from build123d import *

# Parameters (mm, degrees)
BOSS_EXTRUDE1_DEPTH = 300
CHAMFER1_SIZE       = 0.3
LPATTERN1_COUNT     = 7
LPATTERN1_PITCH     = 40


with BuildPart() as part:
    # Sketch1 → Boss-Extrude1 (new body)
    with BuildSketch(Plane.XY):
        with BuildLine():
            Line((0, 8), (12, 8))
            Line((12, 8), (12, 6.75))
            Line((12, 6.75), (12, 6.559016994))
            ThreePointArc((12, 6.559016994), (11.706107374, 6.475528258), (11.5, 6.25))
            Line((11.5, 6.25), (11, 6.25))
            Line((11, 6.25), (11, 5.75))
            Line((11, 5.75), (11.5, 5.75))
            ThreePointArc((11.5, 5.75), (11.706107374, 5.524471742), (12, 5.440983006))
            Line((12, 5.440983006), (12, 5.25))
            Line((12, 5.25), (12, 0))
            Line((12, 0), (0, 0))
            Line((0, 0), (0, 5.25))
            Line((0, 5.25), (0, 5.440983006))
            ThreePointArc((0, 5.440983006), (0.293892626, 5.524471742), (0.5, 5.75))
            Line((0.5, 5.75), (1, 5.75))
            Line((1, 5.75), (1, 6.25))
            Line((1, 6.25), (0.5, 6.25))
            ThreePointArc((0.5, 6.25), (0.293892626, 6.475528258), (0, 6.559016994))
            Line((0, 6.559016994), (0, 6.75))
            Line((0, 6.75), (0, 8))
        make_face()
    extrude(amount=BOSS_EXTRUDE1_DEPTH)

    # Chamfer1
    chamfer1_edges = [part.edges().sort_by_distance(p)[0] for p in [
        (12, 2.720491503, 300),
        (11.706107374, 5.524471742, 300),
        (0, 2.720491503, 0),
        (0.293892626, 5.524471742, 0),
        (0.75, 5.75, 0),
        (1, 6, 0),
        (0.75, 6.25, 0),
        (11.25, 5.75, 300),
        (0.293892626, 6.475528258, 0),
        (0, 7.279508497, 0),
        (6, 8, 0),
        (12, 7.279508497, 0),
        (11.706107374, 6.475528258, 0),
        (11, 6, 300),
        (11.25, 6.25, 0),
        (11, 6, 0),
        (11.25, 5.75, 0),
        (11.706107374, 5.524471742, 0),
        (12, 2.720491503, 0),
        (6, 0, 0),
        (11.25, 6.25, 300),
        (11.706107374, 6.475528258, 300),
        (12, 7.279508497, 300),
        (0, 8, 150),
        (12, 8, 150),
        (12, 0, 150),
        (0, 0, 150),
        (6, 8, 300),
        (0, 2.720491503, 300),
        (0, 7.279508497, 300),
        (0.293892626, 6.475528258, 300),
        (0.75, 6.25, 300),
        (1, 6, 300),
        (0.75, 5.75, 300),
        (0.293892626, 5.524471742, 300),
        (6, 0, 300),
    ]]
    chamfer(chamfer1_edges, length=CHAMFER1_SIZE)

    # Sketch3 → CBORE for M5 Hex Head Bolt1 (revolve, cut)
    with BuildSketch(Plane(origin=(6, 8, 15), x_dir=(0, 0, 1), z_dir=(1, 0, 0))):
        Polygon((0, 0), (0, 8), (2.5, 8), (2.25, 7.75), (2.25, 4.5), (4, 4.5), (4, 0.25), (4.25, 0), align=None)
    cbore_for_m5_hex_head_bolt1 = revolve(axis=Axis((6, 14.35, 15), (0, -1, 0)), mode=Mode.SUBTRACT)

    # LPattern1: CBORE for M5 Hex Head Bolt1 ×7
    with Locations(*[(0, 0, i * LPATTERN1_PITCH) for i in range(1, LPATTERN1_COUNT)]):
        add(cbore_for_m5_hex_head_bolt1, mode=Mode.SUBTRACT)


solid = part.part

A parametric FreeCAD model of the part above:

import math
import FreeCAD as App
import Part
import Sketcher

V = App.Vector
Q = App.Units.Quantity


def edges_at(feature, points):
    """Names of the edges that pass closest to the given points."""
    edges = feature.Shape.Edges
    near = lambda p: min(range(len(edges)), key=lambda i: edges[i].distToShape(Part.Vertex(*p))[0])
    return sorted({f"Edge{near(p) + 1}" for p in points})


def add_polygon(sketch, points):
    """Adds a closed chain of lines whose ends are joined by coincident constraints."""
    first, n = sketch.GeometryCount, len(points)
    for a, b in zip(points, points[1:] + points[:1]):
        sketch.addGeometry(Part.LineSegment(App.Vector(*a, 0), App.Vector(*b, 0)), False)
    for i in range(n):
        sketch.addConstraint(Sketcher.Constraint("Coincident", first + i, 2, first + (i + 1) % n, 1))

doc = App.newDocument("Part")
body = doc.addObject("PartDesign::Body", "Body")

# Sketch on XY plane
sketch1 = body.newObject("Sketcher::SketchObject", "Sketch")
sketch1.AttachmentSupport = (doc.getObject("XY_Plane"), [""])
sketch1.MapMode = "FlatFace"
sketch1.addGeometry(Part.LineSegment(V(12, 8, 0), V(0, 8, 0)), False)
sketch1.addGeometry(Part.LineSegment(V(0, 8, 0), V(0, 6.6, 0)), False)
sketch1.addGeometry(Part.ArcOfCircle(Part.Circle(V(0, 6, 0), V(0, 0, 1), 0.6), math.radians(27), math.radians(90)), False)
sketch1.addGeometry(Part.LineSegment(V(0.5, 6.2, 0), V(1, 6.2, 0)), False)
sketch1.addGeometry(Part.LineSegment(V(1, 6.2, 0), V(1, 5.8, 0)), False)
sketch1.addGeometry(Part.LineSegment(V(1, 5.8, 0), V(0.5, 5.8, 0)), False)
sketch1.addGeometry(Part.ArcOfCircle(Part.Circle(V(0, 6, 0), V(0, 0, 1), 0.6), math.radians(-90), math.radians(-27)), False)
sketch1.addGeometry(Part.LineSegment(V(0, 5.4, 0), V(0, 0, 0)), False)
sketch1.addGeometry(Part.LineSegment(V(0, 0, 0), V(12, 0, 0)), False)
sketch1.addGeometry(Part.LineSegment(V(12, 0, 0), V(12, 5.4, 0)), False)
sketch1.addGeometry(Part.ArcOfCircle(Part.Circle(V(12, 6, 0), V(0, 0, 1), 0.6), math.radians(-153), math.radians(-90)), False)
sketch1.addGeometry(Part.LineSegment(V(11.5, 5.8, 0), V(11, 5.8, 0)), False)
sketch1.addGeometry(Part.LineSegment(V(11, 5.8, 0), V(11, 6.2, 0)), False)
sketch1.addGeometry(Part.LineSegment(V(11, 6.2, 0), V(11.5, 6.2, 0)), False)
sketch1.addGeometry(Part.ArcOfCircle(Part.Circle(V(12, 6, 0), V(0, 0, 1), 0.6), math.radians(90), math.radians(153)), False)
sketch1.addGeometry(Part.LineSegment(V(12, 6.6, 0), V(12, 8, 0)), False)
sketch1.addConstraint(Sketcher.Constraint("Coincident", 0, 2, 1, 1))
sketch1.addConstraint(Sketcher.Constraint("Coincident", 1, 2, 2, 2))
sketch1.addConstraint(Sketcher.Constraint("Coincident", 2, 1, 3, 1))
sketch1.addConstraint(Sketcher.Constraint("Coincident", 3, 2, 4, 1))
sketch1.addConstraint(Sketcher.Constraint("Coincident", 4, 2, 5, 1))
sketch1.addConstraint(Sketcher.Constraint("Coincident", 5, 2, 6, 2))
sketch1.addConstraint(Sketcher.Constraint("Coincident", 6, 1, 7, 1))
sketch1.addConstraint(Sketcher.Constraint("Coincident", 7, 2, 8, 1))
sketch1.addConstraint(Sketcher.Constraint("Coincident", 8, 2, 9, 1))
sketch1.addConstraint(Sketcher.Constraint("Coincident", 9, 2, 10, 2))
sketch1.addConstraint(Sketcher.Constraint("Coincident", 10, 1, 11, 1))
sketch1.addConstraint(Sketcher.Constraint("Coincident", 11, 2, 12, 1))
sketch1.addConstraint(Sketcher.Constraint("Coincident", 12, 2, 13, 1))
sketch1.addConstraint(Sketcher.Constraint("Coincident", 13, 2, 14, 2))
sketch1.addConstraint(Sketcher.Constraint("Coincident", 14, 1, 15, 1))
sketch1.addConstraint(Sketcher.Constraint("Coincident", 15, 2, 0, 1))
sketch1.addConstraint(Sketcher.Constraint("Horizontal", 0))
sketch1.addConstraint(Sketcher.Constraint("Vertical", 1))
sketch1.addConstraint(Sketcher.Constraint("Horizontal", 3))
sketch1.addConstraint(Sketcher.Constraint("Vertical", 4))
sketch1.addConstraint(Sketcher.Constraint("Horizontal", 5))
sketch1.addConstraint(Sketcher.Constraint("Vertical", 7))
sketch1.addConstraint(Sketcher.Constraint("Horizontal", 8))
sketch1.addConstraint(Sketcher.Constraint("Vertical", 9))
sketch1.addConstraint(Sketcher.Constraint("Horizontal", 11))
sketch1.addConstraint(Sketcher.Constraint("Vertical", 12))
sketch1.addConstraint(Sketcher.Constraint("Horizontal", 13))
sketch1.addConstraint(Sketcher.Constraint("Vertical", 15))
sketch1.addConstraint(Sketcher.Constraint("Coincident", 7, 2, -1, 1))
sketch1.addConstraint(Sketcher.Constraint("Coincident", 6, 3, 2, 3))
sketch1.addConstraint(Sketcher.Constraint("Coincident", 14, 3, 10, 3))
sketch1.addConstraint(Sketcher.Constraint("Equal", 2, 6))
sketch1.addConstraint(Sketcher.Constraint("Equal", 6, 10))
sketch1.addConstraint(Sketcher.Constraint("Equal", 10, 14))
sketch1.addConstraint(Sketcher.Constraint("PointOnObject", 2, 3, -2))
sketch1.addConstraint(Sketcher.Constraint("PointOnObject", 0, 2, -2))
sketch1.addConstraint(Sketcher.Constraint("Horizontal", 6, 3, 10, 3))
sketch1.addConstraint(Sketcher.Constraint("Horizontal", 5, 2, 10, 1))
sketch1.addConstraint(Sketcher.Constraint("Horizontal", 3, 2, 12, 2))
sketch1.addConstraint(Sketcher.Constraint("Vertical", 2, 1, 5, 2))
sketch1.addConstraint(Sketcher.Constraint("Vertical", 14, 3, 8, 2))
sketch1.addConstraint(Sketcher.Constraint("Vertical", 9, 2, 14, 1))
sketch1.addConstraint(Sketcher.Constraint("Equal", 5, 11))
sketch1.addConstraint(Sketcher.Constraint("Equal", 13, 4))
sketch1.addConstraint(Sketcher.Constraint("DistanceX", 0, 2, 0, 1, 12.0))
sketch1.addConstraint(Sketcher.Constraint("DistanceX", 3, 1, 3, 2, 0.5))
sketch1.addConstraint(Sketcher.Constraint("DistanceY", -1, 1, 2, 3, 6.0))
sketch1.addConstraint(Sketcher.Constraint("DistanceY", -1, 1, 0, 2, 8.0))
sketch1.addConstraint(Sketcher.Constraint("DistanceX", -1, 1, 3, 2, 1.0))
pad1 = body.newObject("PartDesign::Pad", "Pad")
pad1.Profile = sketch1
pad1.Length = 300
doc.recompute()

chamfer = body.newObject("PartDesign::Chamfer", "Chamfer")
chamfer.Base = (pad1, edges_at(pad1, [
    (12, 2.72, 300),
    (11.706, 5.524, 300),
    (0, 2.72, 0),
    (0.294, 5.524, 0),
    (0.75, 5.75, 0),
    (1, 6, 0),
    (0.75, 6.25, 0),
    (11.25, 5.75, 300),
    (0.294, 6.476, 0),
    (0, 7.28, 0),
    (6, 8, 0),
    (12, 7.28, 0),
    (11.706, 6.476, 0),
    (11, 6, 300),
    (11.25, 6.25, 0),
    (11, 6, 0),
    (11.25, 5.75, 0),
    (11.706, 5.524, 0),
    (12, 2.72, 0),
    (6, 0, 0),
    (11.25, 6.25, 300),
    (11.706, 6.476, 300),
    (12, 7.28, 300),
    (0, 8, 150),
    (12, 8, 150),
    (12, 0, 150),
    (0, 0, 150),
    (6, 8, 300),
    (0, 2.72, 300),
    (0, 7.28, 300),
    (0.294, 6.476, 300),
    (0.75, 6.25, 300),
    (1, 6, 300),
    (0.75, 5.75, 300),
    (0.294, 5.524, 300),
    (6, 0, 300),
]))
chamfer.Size = 0.3

# Sketch on YZ plane
sketch2 = body.newObject("Sketcher::SketchObject", "Sketch001")
sketch2.AttachmentSupport = (doc.getObject("YZ_Plane"), [""])
sketch2.MapMode = "FlatFace"
sketch2.AttachmentOffset = App.Placement(V(0, 0, 6), App.Rotation())
add_polygon(sketch2, [(0, 15), (8, 15), (8, 19.25), (7.75, 19), (3.5, 19), (3.5, 17.25), (0.25, 17.25), (0, 17.5)])  # lines 0-7
sketch2.addGeometry(Part.LineSegment(V(8, 15, 0), V(0, 15, 0)), True)  # axis
sketch2.addConstraint(Sketcher.Constraint("Horizontal", 0))
sketch2.addConstraint(Sketcher.Constraint("Vertical", 1))
sketch2.addConstraint(Sketcher.Constraint("Horizontal", 3))
sketch2.addConstraint(Sketcher.Constraint("Vertical", 4))
sketch2.addConstraint(Sketcher.Constraint("Horizontal", 5))
sketch2.addConstraint(Sketcher.Constraint("Vertical", 7))
sketch2.addConstraint(Sketcher.Constraint("Horizontal", 8))
sketch2.addConstraint(Sketcher.Constraint("Coincident", 8, 1, 0, 2))
sketch2.addConstraint(Sketcher.Constraint("PointOnObject", 6, 2, -2))
sketch2.addConstraint(Sketcher.Constraint("PointOnObject", 8, 2, -2))
sketch2.addConstraint(Sketcher.Constraint("Perpendicular", 2, 6))
sketch2.addConstraint(Sketcher.Constraint("Equal", 3, 1))
sketch2.addConstraint(Sketcher.Constraint("Equal", 2, 6))
sketch2.addConstraint(Sketcher.Constraint("DistanceX", 0, 1, 0, 2, 8.0))
sketch2.addConstraint(Sketcher.Constraint("Angle", 2, Q("-135 deg")))
sketch2.addConstraint(Sketcher.Constraint("DistanceY", 7, 2, 7, 1, 2.5))
sketch2.addConstraint(Sketcher.Constraint("DistanceY", -1, 1, 0, 2, 15.0))
sketch2.addConstraint(Sketcher.Constraint("DistanceY", -1, 1, 2, 2, 19.0))
sketch2.addConstraint(Sketcher.Constraint("DistanceY", 4, 2, 1, 2, 2.0))
groove = body.newObject("PartDesign::Groove", "Groove")
groove.Profile = sketch2
groove.ReferenceAxis = (sketch2, ["Axis0"])
groove.Angle = 360
doc.recompute()

linearpattern = body.newObject("PartDesign::LinearPattern", "LinearPattern")
linearpattern.Originals = [groove]
linearpattern.Direction = (doc.getObject("Z_Axis"), [""])
linearpattern.Mode = "offset"
linearpattern.Offset = 40
linearpattern.Occurrences = 7
body.Tip = linearpattern

doc.recompute()
